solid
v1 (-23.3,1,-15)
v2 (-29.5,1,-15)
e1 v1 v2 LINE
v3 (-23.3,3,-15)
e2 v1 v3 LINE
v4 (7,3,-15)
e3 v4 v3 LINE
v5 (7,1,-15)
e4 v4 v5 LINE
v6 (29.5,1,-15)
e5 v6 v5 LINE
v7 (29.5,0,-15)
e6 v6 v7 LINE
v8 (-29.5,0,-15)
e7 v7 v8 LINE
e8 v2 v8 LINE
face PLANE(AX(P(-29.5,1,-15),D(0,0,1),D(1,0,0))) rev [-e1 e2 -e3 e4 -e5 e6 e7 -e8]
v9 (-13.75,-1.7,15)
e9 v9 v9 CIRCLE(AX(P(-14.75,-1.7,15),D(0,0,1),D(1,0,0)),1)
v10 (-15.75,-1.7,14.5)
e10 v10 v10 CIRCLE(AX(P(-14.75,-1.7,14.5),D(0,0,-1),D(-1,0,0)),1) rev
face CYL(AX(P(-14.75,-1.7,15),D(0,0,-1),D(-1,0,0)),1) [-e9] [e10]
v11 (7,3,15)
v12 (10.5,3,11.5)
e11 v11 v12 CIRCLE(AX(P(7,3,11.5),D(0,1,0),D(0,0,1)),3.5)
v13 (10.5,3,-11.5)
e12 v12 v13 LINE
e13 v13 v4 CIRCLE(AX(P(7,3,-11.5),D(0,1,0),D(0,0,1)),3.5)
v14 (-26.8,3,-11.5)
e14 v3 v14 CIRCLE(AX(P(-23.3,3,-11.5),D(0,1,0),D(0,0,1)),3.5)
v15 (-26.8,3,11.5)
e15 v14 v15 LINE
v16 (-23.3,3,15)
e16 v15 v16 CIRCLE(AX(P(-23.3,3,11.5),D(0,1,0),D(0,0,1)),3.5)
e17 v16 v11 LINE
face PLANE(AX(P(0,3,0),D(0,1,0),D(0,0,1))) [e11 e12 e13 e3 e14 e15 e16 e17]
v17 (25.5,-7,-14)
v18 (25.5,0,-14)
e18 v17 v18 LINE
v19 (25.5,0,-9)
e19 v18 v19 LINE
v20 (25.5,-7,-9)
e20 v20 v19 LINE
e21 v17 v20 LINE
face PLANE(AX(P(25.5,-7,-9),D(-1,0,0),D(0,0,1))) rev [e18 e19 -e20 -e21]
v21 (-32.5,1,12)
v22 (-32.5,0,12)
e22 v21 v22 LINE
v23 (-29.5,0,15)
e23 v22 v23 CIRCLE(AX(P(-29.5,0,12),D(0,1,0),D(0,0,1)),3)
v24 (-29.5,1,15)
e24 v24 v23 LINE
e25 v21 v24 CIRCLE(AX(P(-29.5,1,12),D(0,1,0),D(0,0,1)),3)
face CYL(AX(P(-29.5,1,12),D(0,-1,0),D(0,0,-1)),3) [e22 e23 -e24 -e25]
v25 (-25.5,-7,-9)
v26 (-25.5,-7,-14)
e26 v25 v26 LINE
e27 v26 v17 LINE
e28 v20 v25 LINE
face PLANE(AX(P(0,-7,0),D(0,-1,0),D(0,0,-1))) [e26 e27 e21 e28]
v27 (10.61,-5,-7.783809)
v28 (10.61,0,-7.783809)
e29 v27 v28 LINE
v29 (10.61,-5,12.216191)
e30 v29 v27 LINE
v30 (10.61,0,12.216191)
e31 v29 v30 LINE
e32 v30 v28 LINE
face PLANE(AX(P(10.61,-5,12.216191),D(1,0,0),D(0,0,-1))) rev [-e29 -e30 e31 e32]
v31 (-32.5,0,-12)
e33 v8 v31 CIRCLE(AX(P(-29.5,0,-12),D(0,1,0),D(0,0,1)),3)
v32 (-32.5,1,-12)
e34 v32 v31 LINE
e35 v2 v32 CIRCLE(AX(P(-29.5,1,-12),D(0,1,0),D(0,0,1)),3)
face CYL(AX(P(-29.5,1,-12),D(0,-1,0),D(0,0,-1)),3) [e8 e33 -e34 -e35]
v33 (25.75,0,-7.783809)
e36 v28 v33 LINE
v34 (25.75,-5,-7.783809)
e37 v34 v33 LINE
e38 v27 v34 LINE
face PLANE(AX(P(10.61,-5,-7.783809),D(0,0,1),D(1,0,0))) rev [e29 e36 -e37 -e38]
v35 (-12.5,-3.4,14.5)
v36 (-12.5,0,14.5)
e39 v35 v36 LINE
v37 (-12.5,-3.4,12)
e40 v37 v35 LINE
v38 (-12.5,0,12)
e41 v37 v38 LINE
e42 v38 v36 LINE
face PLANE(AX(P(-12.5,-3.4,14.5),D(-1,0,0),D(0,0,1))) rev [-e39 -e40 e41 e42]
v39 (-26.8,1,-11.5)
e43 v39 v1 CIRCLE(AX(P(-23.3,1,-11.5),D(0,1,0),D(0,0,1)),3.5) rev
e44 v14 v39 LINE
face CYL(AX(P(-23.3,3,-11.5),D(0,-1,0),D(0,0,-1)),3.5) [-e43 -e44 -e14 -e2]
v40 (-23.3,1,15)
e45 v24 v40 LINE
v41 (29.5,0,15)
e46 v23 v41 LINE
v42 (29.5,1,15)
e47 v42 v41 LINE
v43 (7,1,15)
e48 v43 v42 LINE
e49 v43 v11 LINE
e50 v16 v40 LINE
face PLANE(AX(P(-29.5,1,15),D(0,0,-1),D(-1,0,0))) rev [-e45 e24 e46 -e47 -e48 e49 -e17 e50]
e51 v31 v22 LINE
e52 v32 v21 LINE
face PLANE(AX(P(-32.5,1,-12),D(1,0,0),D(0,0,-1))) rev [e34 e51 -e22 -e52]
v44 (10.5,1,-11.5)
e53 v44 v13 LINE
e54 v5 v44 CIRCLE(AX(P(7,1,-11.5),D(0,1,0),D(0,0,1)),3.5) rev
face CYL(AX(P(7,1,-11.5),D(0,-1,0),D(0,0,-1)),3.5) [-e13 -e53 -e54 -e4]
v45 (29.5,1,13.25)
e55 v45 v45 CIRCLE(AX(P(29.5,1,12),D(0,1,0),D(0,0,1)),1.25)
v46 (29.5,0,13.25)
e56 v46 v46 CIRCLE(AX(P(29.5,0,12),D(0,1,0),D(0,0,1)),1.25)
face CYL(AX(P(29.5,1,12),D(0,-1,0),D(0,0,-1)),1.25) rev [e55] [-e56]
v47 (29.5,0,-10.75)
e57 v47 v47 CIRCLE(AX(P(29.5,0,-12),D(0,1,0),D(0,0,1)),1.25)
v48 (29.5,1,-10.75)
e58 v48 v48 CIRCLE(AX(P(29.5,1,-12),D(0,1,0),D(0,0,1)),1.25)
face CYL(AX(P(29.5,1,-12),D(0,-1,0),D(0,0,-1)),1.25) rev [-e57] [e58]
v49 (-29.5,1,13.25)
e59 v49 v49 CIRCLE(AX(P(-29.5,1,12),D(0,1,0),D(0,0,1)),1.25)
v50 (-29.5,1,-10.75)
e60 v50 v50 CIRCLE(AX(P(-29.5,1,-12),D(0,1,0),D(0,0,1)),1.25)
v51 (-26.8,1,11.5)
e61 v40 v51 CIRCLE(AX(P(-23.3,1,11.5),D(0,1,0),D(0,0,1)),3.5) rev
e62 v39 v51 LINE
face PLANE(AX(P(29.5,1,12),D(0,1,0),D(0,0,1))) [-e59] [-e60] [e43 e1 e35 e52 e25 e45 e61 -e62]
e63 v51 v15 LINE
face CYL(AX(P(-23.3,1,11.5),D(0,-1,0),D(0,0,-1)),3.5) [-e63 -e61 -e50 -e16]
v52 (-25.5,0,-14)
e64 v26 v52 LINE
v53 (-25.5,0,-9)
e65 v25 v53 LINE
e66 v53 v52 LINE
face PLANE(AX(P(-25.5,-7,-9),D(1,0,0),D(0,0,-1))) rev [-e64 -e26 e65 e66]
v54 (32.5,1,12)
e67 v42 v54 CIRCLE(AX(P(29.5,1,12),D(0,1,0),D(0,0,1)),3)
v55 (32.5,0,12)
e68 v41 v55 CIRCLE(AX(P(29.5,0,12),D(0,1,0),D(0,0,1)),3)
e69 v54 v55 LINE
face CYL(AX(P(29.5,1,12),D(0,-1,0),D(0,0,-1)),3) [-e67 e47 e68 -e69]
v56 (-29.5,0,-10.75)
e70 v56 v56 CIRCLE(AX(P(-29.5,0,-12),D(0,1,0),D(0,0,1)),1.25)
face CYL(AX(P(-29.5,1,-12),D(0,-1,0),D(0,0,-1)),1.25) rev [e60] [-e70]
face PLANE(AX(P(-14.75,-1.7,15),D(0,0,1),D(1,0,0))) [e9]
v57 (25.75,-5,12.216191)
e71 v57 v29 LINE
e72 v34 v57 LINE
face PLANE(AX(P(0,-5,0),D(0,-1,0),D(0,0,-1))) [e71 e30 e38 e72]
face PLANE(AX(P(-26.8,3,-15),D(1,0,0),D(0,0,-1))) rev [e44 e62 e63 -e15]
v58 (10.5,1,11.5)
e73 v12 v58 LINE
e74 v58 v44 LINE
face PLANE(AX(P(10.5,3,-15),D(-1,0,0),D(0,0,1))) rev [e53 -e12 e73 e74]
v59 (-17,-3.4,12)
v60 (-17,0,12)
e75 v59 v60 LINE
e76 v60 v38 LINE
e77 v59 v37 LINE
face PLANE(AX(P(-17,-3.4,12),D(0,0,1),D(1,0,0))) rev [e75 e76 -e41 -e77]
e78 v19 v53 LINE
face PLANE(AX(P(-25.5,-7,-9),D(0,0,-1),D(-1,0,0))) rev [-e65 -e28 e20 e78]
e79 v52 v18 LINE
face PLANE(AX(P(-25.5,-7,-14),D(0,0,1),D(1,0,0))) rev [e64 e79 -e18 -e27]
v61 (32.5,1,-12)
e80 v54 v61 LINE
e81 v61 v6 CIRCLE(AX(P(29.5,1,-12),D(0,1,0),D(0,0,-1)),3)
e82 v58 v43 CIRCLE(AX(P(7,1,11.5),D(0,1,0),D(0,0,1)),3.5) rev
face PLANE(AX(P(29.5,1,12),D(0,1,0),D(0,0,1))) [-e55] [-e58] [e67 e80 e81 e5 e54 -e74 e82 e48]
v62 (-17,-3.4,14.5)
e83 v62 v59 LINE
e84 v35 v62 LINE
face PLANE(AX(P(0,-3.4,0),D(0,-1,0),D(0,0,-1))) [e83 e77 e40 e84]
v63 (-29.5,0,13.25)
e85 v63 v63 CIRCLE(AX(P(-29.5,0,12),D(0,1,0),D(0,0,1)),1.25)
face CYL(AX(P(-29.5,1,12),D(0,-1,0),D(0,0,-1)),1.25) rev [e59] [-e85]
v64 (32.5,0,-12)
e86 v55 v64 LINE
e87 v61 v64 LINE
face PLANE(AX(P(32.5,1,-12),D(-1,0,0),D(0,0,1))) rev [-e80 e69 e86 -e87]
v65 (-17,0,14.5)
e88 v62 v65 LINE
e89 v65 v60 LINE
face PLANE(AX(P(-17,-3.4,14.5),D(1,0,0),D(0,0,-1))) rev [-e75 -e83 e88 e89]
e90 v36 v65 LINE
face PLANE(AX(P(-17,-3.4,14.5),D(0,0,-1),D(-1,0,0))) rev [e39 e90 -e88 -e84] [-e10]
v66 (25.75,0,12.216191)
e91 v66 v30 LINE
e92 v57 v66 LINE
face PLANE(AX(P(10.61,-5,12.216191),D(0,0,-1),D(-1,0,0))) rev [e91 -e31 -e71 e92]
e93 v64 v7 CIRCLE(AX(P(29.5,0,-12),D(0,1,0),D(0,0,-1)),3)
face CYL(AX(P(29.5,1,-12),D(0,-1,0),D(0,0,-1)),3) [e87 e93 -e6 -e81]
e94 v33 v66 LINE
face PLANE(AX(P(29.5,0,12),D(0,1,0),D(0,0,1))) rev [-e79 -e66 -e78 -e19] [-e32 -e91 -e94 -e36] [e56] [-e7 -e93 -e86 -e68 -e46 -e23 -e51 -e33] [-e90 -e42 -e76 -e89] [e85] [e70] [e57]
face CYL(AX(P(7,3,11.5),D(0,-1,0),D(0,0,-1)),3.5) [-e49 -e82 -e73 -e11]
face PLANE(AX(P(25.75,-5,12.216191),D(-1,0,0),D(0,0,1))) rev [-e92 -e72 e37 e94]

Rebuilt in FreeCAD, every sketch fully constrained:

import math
import FreeCAD as App
import Part
import Sketcher
from FreeCAD import Vector


def edges_at(feature, points):
    """Names of the edges that pass closest to the given points."""
    edges = feature.Shape.Edges
    near = lambda p: min(range(len(edges)), key=lambda i: edges[i].distToShape(Part.Vertex(*p))[0])
    return sorted({f"Edge{near(p) + 1}" for p in points})

doc = App.newDocument("Part")
body = doc.addObject("PartDesign::Body", "Body")

sketch1 = body.newObject("Sketcher::SketchObject", "Sketch")
sketch1.AttachmentSupport = (doc.getObject("XZ_Plane"), [""])
sketch1.MapMode = "FlatFace"
sketch1.addGeometry([
    Part.LineSegment(Vector(29.5, -15, 0), Vector(-29.5, -15, 0)),
    Part.ArcOfCircle(Part.Circle(Vector(-29.5, -12, 0), Vector(0, 0, 1), 3), math.radians(180), math.radians(270)),
    Part.LineSegment(Vector(-32.5, -12, 0), Vector(-32.5, 12, 0)),
    Part.ArcOfCircle(Part.Circle(Vector(-29.5, 12, 0), Vector(0, 0, 1), 3), math.radians(90), math.radians(180)),
    Part.LineSegment(Vector(-29.5, 15, 0), Vector(29.5, 15, 0)),
    Part.ArcOfCircle(Part.Circle(Vector(29.5, 12, 0), Vector(0, 0, 1), 3), math.radians(0), math.radians(90)),
    Part.LineSegment(Vector(32.5, 12, 0), Vector(32.5, -12, 0)),
    Part.ArcOfCircle(Part.Circle(Vector(29.5, -12, 0), Vector(0, 0, 1), 3), math.radians(-90), math.radians(0)),
    Part.Circle(Vector(29.5, 12, 0), Vector(0, 0, 1), 1.2),
    Part.Circle(Vector(-29.5, 12, 0), Vector(0, 0, 1), 1.2),
    Part.Circle(Vector(29.5, -12, 0), Vector(0, 0, 1), 1.2),
    Part.Circle(Vector(-29.5, -12, 0), Vector(0, 0, 1), 1.2),
], False)
sketch1.addConstraint([
    Sketcher.Constraint("Tangent", 0, 2, 1, 2),
    Sketcher.Constraint("Tangent", 1, 1, 2, 1),
    Sketcher.Constraint("Tangent", 2, 2, 3, 2),
    Sketcher.Constraint("Tangent", 3, 1, 4, 1),
    Sketcher.Constraint("Tangent", 4, 2, 5, 2),
    Sketcher.Constraint("Tangent", 5, 1, 6, 1),
    Sketcher.Constraint("Tangent", 6, 2, 7, 2),
    Sketcher.Constraint("Tangent", 7, 1, 0, 1),
    Sketcher.Constraint("Horizontal", 0),
    Sketcher.Constraint("Vertical", 2),
    Sketcher.Constraint("Horizontal", 4),
    Sketcher.Constraint("Vertical", 6),
    Sketcher.Constraint("Coincident", 8, 3, 5, 3),
    Sketcher.Constraint("Coincident", 9, 3, 3, 3),
    Sketcher.Constraint("Coincident", 10, 3, 7, 3),
    Sketcher.Constraint("Coincident", 11, 3, 1, 3),
    Sketcher.Constraint("Equal", 1, 3),
    Sketcher.Constraint("Equal", 3, 5),
    Sketcher.Constraint("Equal", 5, 7),
    Sketcher.Constraint("Equal", 8, 9),
    Sketcher.Constraint("Equal", 9, 10),
    Sketcher.Constraint("Equal", 10, 11),
    Sketcher.Constraint("Symmetric", 1, 3, 5, 3, -1, 1),
    Sketcher.Constraint("Radius", 1, 3.0),
    Sketcher.Constraint("Diameter", 8, 2.5),
    Sketcher.Constraint("DistanceX", 0, 2, 0, 1, 59.0),
    Sketcher.Constraint("DistanceY", 2, 1, 2, 2, 24.0),
])
pad1 = body.newObject("PartDesign::Pad", "Pad")
pad1.Profile = sketch1
pad1.Length = 1
pad1.Reversed = True

sketch2 = body.newObject("Sketcher::SketchObject", "Sketch001")
sketch2.AttachmentSupport = (doc.getObject("XZ_Plane"), [""])
sketch2.MapMode = "FlatFace"
sketch2.AttachmentOffset = App.Placement(Vector(0, 0, -1), App.Rotation())
sketch2.addGeometry([
    Part.LineSegment(Vector(-27, -15, 0), Vector(-27, 15, 0)),
    Part.LineSegment(Vector(-27, 15, 0), Vector(10, 15, 0)),
    Part.LineSegment(Vector(10, 15, 0), Vector(10, -15, 0)),
    Part.LineSegment(Vector(10, -15, 0), Vector(-27, -15, 0)),
], False)
sketch2.addConstraint([
    Sketcher.Constraint("Coincident", 0, 2, 1, 1),
    Sketcher.Constraint("Coincident", 1, 2, 2, 1),
    Sketcher.Constraint("Coincident", 2, 2, 3, 1),
    Sketcher.Constraint("Coincident", 3, 2, 0, 1),
    Sketcher.Constraint("Vertical", 0),
    Sketcher.Constraint("Horizontal", 1),
    Sketcher.Constraint("Vertical", 2),
    Sketcher.Constraint("Horizontal", 3),
    Sketcher.Constraint("DistanceY", 0, 1, 0, 2, 30.0),
    Sketcher.Constraint("DistanceX", 1, 1, 1, 2, 37.3),
    Sketcher.Constraint("DistanceY", -1, 1, 0, 2, 15.0),
    Sketcher.Constraint("DistanceX", 0, 2, -1, 1, 26.8),
])
pad2 = body.newObject("PartDesign::Pad", "Pad001")
pad2.Profile = sketch2
pad2.Length = 2
pad2.Reversed = True
doc.recompute()

fillet = body.newObject("PartDesign::Fillet", "Fillet")
fillet.Base = (pad2, edges_at(pad2, [
    (-26.8, 2, -15),
    (-26.8, 2, 15),
    (10.5, 2, 15),
    (10.5, 2, -15),
]))
fillet.Radius = 3.5

sketch3 = body.newObject("Sketcher::SketchObject", "Sketch002")
sketch3.AttachmentSupport = (doc.getObject("XZ_Plane"), [""])
sketch3.MapMode = "FlatFace"
sketch3.addGeometry([
    Part.LineSegment(Vector(-26, -9, 0), Vector(-26, -14, 0)),
    Part.LineSegment(Vector(-26, -14, 0), Vector(26, -14, 0)),
    Part.LineSegment(Vector(26, -14, 0), Vector(26, -9, 0)),
    Part.LineSegment(Vector(26, -9, 0), Vector(-26, -9, 0)),
], False)
sketch3.addConstraint([
    Sketcher.Constraint("Coincident", 0, 2, 1, 1),
    Sketcher.Constraint("Coincident", 1, 2, 2, 1),
    Sketcher.Constraint("Coincident", 2, 2, 3, 1),
    Sketcher.Constraint("Coincident", 3, 2, 0, 1),
    Sketcher.Constraint("Vertical", 0),
    Sketcher.Constraint("Horizontal", 1),
    Sketcher.Constraint("Vertical", 2),
    Sketcher.Constraint("Horizontal", 3),
    Sketcher.Constraint("DistanceX", 1, 1, 1, 2, 51.0),
    Sketcher.Constraint("DistanceY", 0, 2, 0, 1, 5.0),
    Sketcher.Constraint("DistanceY", 0, 2, -1, 1, 14.0),
    Sketcher.Constraint("DistanceX", 0, 2, -1, 1, 25.5),
])
pad3 = body.newObject("PartDesign::Pad", "Pad002")
pad3.Profile = sketch3
pad3.Length = 7

sketch4 = body.newObject("Sketcher::SketchObject", "Sketch003")
sketch4.AttachmentSupport = (doc.getObject("XZ_Plane"), [""])
sketch4.MapMode = "FlatFace"
sketch4.addGeometry([
    Part.LineSegment(Vector(11, 12, 0), Vector(11, -8, 0)),
    Part.LineSegment(Vector(11, -8, 0), Vector(26, -8, 0)),
    Part.LineSegment(Vector(26, -8, 0), Vector(26, 12, 0)),
    Part.LineSegment(Vector(26, 12, 0), Vector(11, 12, 0)),
], False)
sketch4.addConstraint([
    Sketcher.Constraint("Coincident", 0, 2, 1, 1),
    Sketcher.Constraint("Coincident", 1, 2, 2, 1),
    Sketcher.Constraint("Coincident", 2, 2, 3, 1),
    Sketcher.Constraint("Coincident", 3, 2, 0, 1),
    Sketcher.Constraint("Vertical", 0),
    Sketcher.Constraint("Horizontal", 1),
    Sketcher.Constraint("Vertical", 2),
    Sketcher.Constraint("Horizontal", 3),
    Sketcher.Constraint("DistanceY", 0, 2, 0, 1, 20.0),
    Sketcher.Constraint("DistanceX", 1, 1, 1, 2, 15.14),
    Sketcher.Constraint("DistanceX", -1, 1, 0, 2, 10.61),
    Sketcher.Constraint("DistanceY", 0, 2, -1, 1, 7.783809),
])
pad4 = body.newObject("PartDesign::Pad", "Pad003")
pad4.Profile = sketch4
pad4.Length = 5

sketch5 = body.newObject("Sketcher::SketchObject", "Sketch004")
sketch5.AttachmentSupport = (doc.getObject("XZ_Plane"), [""])
sketch5.MapMode = "FlatFace"
sketch5.addGeometry([
    Part.LineSegment(Vector(-17, 14.5, 0), Vector(-17, 12, 0)),
    Part.LineSegment(Vector(-17, 12, 0), Vector(-12.5, 12, 0)),
    Part.LineSegment(Vector(-12.5, 12, 0), Vector(-12.5, 14.5, 0)),
    Part.LineSegment(Vector(-12.5, 14.5, 0), Vector(-17, 14.5, 0)),
], False)
sketch5.addConstraint([
    Sketcher.Constraint("Coincident", 0, 2, 1, 1),
    Sketcher.Constraint("Coincident", 1, 2, 2, 1),
    Sketcher.Constraint("Coincident", 2, 2, 3, 1),
    Sketcher.Constraint("Coincident", 3, 2, 0, 1),
    Sketcher.Constraint("Vertical", 0),
    Sketcher.Constraint("Horizontal", 1),
    Sketcher.Constraint("Vertical", 2),
    Sketcher.Constraint("Horizontal", 3),
    Sketcher.Constraint("DistanceX", 1, 1, 1, 2, 4.5),
    Sketcher.Constraint("DistanceY", 0, 2, 0, 1, 2.5),
    Sketcher.Constraint("DistanceX", 0, 2, -1, 1, 17.0),
    Sketcher.Constraint("DistanceY", -1, 1, 0, 2, 12.0),
])
pad5 = body.newObject("PartDesign::Pad", "Pad004")
pad5.Profile = sketch5
pad5.Length = 3.4

sketch6 = body.newObject("Sketcher::SketchObject", "Sketch005")
sketch6.AttachmentSupport = (doc.getObject("XY_Plane"), [""])
sketch6.MapMode = "FlatFace"
sketch6.AttachmentOffset = App.Placement(Vector(0, 0, 14.5), App.Rotation())
sketch6.addGeometry(Part.Circle(Vector(-14.8, -1.7, 0), Vector(0, 0, 1), 1), False)
sketch6.addConstraint([
    Sketcher.Constraint("Diameter", 0, 2.0),
    Sketcher.Constraint("DistanceY", 0, 3, -1, 1, 1.7),
    Sketcher.Constraint("DistanceX", 0, 3, -1, 1, 14.75),
])
pad6 = body.newObject("PartDesign::Pad", "Pad005")
pad6.Profile = sketch6
pad6.Length = 0.5

doc.recompute()
